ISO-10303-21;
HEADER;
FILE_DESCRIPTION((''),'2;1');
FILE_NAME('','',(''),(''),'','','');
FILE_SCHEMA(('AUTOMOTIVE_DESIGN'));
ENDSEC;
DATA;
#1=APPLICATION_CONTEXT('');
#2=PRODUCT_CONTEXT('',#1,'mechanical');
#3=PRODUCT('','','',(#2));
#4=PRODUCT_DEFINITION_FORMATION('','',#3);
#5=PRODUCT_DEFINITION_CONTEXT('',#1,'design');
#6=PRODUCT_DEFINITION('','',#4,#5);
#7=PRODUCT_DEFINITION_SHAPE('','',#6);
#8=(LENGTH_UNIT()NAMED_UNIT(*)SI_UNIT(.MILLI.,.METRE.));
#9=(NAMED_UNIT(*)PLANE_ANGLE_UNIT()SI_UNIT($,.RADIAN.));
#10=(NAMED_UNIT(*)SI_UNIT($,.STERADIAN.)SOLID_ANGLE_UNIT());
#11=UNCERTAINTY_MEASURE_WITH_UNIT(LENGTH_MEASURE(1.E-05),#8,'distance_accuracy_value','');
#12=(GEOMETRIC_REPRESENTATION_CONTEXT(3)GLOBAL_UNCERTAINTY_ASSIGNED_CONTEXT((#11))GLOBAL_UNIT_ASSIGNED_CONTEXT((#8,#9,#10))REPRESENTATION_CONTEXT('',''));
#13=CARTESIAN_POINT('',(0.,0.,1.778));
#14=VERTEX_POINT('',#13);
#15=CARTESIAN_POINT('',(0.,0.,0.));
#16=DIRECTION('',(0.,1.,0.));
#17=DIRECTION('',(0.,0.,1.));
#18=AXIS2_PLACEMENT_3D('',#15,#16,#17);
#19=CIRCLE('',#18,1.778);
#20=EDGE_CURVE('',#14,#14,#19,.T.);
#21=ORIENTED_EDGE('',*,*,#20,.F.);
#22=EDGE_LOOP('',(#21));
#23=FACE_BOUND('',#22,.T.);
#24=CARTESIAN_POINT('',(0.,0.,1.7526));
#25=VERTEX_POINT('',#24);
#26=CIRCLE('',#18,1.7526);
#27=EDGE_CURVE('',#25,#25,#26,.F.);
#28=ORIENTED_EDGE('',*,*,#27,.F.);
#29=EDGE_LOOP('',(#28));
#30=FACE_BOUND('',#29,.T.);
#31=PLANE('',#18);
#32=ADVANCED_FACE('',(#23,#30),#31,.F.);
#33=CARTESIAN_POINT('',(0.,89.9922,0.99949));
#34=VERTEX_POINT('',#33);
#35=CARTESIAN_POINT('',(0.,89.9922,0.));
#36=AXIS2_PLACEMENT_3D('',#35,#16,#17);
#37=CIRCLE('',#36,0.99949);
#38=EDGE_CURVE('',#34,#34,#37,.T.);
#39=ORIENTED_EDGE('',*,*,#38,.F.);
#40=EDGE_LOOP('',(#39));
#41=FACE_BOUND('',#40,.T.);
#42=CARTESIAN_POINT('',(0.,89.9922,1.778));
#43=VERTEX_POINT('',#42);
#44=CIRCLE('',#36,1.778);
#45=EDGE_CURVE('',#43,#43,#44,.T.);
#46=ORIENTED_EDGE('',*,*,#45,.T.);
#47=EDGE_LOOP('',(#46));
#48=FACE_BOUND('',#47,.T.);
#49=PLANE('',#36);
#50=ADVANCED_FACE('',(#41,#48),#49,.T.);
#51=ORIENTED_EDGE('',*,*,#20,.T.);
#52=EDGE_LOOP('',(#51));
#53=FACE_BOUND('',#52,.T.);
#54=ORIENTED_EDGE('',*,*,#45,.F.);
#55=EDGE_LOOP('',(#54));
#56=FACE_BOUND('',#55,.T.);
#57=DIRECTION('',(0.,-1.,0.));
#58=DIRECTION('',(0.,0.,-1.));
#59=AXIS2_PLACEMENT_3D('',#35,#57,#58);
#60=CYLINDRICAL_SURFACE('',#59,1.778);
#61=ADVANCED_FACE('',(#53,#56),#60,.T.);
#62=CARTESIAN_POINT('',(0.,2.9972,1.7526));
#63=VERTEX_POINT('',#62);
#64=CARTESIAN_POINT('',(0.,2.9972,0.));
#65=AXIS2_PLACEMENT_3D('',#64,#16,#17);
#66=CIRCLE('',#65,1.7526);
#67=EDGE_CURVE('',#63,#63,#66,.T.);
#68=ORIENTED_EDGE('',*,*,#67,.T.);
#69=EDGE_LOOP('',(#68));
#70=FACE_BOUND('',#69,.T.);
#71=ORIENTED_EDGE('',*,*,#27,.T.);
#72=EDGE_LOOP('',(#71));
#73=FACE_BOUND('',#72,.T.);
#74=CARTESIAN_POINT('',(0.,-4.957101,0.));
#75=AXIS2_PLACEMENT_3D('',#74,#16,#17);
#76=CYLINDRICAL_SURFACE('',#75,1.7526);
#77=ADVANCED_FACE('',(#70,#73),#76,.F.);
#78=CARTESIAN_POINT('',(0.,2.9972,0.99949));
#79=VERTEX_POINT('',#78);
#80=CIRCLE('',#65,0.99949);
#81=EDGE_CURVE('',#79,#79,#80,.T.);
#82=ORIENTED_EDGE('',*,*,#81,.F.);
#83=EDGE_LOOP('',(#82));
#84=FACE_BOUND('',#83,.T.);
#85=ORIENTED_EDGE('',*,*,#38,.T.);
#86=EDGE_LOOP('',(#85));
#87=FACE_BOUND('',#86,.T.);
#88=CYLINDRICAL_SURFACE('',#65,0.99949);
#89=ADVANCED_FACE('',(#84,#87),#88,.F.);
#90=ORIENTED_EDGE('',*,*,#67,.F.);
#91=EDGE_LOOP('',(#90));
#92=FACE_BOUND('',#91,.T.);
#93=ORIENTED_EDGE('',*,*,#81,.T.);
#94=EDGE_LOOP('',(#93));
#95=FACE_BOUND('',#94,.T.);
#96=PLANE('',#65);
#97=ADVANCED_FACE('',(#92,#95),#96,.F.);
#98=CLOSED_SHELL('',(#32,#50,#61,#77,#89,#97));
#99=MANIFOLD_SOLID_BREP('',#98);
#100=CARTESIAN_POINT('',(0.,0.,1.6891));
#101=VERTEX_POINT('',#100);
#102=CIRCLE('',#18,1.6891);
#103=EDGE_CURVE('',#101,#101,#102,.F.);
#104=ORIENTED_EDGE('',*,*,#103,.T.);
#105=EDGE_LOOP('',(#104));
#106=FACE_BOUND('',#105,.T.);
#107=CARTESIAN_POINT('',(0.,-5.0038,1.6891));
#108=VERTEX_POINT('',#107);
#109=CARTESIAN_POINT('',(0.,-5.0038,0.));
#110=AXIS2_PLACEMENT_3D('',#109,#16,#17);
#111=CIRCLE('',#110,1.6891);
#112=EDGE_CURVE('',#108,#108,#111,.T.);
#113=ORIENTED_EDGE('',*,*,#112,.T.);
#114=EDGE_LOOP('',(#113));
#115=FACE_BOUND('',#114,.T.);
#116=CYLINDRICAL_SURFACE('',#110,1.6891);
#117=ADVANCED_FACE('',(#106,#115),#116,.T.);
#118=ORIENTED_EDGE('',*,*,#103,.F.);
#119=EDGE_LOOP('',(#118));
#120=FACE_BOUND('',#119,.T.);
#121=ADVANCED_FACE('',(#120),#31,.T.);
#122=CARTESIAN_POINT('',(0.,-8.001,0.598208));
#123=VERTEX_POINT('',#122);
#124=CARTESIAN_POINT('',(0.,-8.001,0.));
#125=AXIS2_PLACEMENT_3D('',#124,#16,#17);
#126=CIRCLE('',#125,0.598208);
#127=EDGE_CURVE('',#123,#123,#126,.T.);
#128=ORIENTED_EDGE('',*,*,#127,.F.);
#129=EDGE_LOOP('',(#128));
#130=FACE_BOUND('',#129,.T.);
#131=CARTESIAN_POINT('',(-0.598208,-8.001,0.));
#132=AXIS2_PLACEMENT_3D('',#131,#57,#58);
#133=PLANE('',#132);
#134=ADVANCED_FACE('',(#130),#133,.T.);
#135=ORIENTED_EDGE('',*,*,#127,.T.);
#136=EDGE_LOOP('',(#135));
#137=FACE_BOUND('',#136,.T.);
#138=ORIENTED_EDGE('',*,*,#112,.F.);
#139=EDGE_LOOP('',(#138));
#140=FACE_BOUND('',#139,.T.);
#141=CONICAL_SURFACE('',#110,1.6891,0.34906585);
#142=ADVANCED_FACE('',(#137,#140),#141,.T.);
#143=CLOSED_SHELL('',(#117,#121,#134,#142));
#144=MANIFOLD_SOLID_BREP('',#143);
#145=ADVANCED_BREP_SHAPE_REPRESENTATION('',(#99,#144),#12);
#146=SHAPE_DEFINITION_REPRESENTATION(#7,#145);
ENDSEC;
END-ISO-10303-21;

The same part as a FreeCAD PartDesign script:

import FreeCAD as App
import Part
import Sketcher
from FreeCAD import Vector
Q = App.Units.Quantity


def add_polygon(sketch, points):
    """Adds a closed chain of lines whose ends are joined by coincident constraints."""
    first, n = sketch.GeometryCount, len(points)
    for a, b in zip(points, points[1:] + points[:1]):
        sketch.addGeometry(Part.LineSegment(App.Vector(*a, 0), App.Vector(*b, 0)), False)
    for i in range(n):
        sketch.addConstraint(Sketcher.Constraint("Coincident", first + i, 2, first + (i + 1) % n, 1))

doc = App.newDocument("Part")
body = doc.addObject("PartDesign::Body", "Body")
body.AllowCompound = True

# Sketch on XZ plane
sketch1 = body.newObject("Sketcher::SketchObject", "Sketch")
sketch1.AttachmentSupport = (doc.getObject("XZ_Plane"), [""])
sketch1.MapMode = "FlatFace"
sketch1.addGeometry(Part.Circle(Vector(0, 0, 0), Vector(0, 0, 1), 1.778), False)
sketch1.addConstraint([
    Sketcher.Constraint("Coincident", 0, 3, -1, 1),
    Sketcher.Constraint("Diameter", 0, Q("0.14 in")),
])
pad1 = body.newObject("PartDesign::Pad", "Pad")
pad1.Profile = sketch1
pad1.Length = Q("3.543 in")
pad1.Reversed = True

# Sketch on XZ plane
sketch2 = body.newObject("Sketcher::SketchObject", "Sketch001")
sketch2.AttachmentSupport = (doc.getObject("XZ_Plane"), [""])
sketch2.MapMode = "FlatFace"
sketch2.AttachmentOffset = App.Placement(Vector(0, 0, -0.118 * 25.4), App.Rotation())
sketch2.addGeometry(Part.Circle(Vector(0, 0, 0), Vector(0, 0, 1), 1.6891), False)
sketch2.addConstraint([
    Sketcher.Constraint("Coincident", 0, 3, -1, 1),
    Sketcher.Constraint("Diameter", 0, Q("0.133 in")),
])
pad2 = body.newObject("PartDesign::Pad", "Pad001")
pad2.Profile = sketch2
pad2.Length = Q("0.315 in")

# Sketch on XZ plane
sketch3 = body.newObject("Sketcher::SketchObject", "Sketch002")
sketch3.AttachmentSupport = (doc.getObject("XZ_Plane"), [""])
sketch3.MapMode = "FlatFace"
sketch3.AttachmentOffset = App.Placement(Vector(0, 0, -3.543 * 25.4), App.Rotation())
sketch3.addGeometry(Part.Circle(Vector(0, 0, 0), Vector(0, 0, 1), 0.99949), False)
sketch3.addConstraint([
    Sketcher.Constraint("Coincident", 0, 3, -1, 1),
    Sketcher.Constraint("Diameter", 0, Q("0.0787 in")),
])
pocket1 = body.newObject("PartDesign::Pocket", "Pocket")
pocket1.Profile = sketch3
pocket1.Length = Q("3.425 in")
pocket1.Reversed = True

# Sketch on XZ plane
sketch4 = body.newObject("Sketcher::SketchObject", "Sketch003")
sketch4.AttachmentSupport = (doc.getObject("XZ_Plane"), [""])
sketch4.MapMode = "FlatFace"
sketch4.AttachmentOffset = App.Placement(Vector(0, 0, -0.118 * 25.4), App.Rotation())
sketch4.addGeometry(Part.Circle(Vector(0, 0, 0), Vector(0, 0, 1), 1.7526), False)
sketch4.addConstraint([
    Sketcher.Constraint("Coincident", 0, 3, -1, 1),
    Sketcher.Constraint("Diameter", 0, Q("0.138 in")),
])
pocket2 = body.newObject("PartDesign::Pocket", "Pocket001")
pocket2.Profile = sketch4
pocket2.Length = Q("0.118 in")
pocket2.Reversed = True

# Sketch on XY plane
sketch5 = body.newObject("Sketcher::SketchObject", "Sketch004")
sketch5.AttachmentSupport = (doc.getObject("XY_Plane"), [""])
sketch5.MapMode = "FlatFace"
add_polygon(sketch5, [(-1.6891, -5.0038), (-0.598208, -8.001), (0, -8.001), (0, -5.0038)])  # lines 0-3
sketch5.addConstraint([
    Sketcher.Constraint("Horizontal", 1),
    Sketcher.Constraint("Vertical", 2),
    Sketcher.Constraint("Horizontal", 3),
    Sketcher.Constraint("PointOnObject", 1, 2, -2),
    Sketcher.Constraint("Angle", 0, Q("-70 deg")),
    Sketcher.Constraint("DistanceY", 2, 1, 2, 2, Q("0.118 in")),
    Sketcher.Constraint("DistanceX", 3, 2, 3, 1, Q("0.0665 in")),
    Sketcher.Constraint("DistanceY", 0, 2, -1, 1, Q("0.315 in")),
])
revolution = body.newObject("PartDesign::Revolution", "Revolution")
revolution.Profile = sketch5
revolution.ReferenceAxis = (sketch5, ["V_Axis"])
revolution.Angle = 360

doc.recompute()
